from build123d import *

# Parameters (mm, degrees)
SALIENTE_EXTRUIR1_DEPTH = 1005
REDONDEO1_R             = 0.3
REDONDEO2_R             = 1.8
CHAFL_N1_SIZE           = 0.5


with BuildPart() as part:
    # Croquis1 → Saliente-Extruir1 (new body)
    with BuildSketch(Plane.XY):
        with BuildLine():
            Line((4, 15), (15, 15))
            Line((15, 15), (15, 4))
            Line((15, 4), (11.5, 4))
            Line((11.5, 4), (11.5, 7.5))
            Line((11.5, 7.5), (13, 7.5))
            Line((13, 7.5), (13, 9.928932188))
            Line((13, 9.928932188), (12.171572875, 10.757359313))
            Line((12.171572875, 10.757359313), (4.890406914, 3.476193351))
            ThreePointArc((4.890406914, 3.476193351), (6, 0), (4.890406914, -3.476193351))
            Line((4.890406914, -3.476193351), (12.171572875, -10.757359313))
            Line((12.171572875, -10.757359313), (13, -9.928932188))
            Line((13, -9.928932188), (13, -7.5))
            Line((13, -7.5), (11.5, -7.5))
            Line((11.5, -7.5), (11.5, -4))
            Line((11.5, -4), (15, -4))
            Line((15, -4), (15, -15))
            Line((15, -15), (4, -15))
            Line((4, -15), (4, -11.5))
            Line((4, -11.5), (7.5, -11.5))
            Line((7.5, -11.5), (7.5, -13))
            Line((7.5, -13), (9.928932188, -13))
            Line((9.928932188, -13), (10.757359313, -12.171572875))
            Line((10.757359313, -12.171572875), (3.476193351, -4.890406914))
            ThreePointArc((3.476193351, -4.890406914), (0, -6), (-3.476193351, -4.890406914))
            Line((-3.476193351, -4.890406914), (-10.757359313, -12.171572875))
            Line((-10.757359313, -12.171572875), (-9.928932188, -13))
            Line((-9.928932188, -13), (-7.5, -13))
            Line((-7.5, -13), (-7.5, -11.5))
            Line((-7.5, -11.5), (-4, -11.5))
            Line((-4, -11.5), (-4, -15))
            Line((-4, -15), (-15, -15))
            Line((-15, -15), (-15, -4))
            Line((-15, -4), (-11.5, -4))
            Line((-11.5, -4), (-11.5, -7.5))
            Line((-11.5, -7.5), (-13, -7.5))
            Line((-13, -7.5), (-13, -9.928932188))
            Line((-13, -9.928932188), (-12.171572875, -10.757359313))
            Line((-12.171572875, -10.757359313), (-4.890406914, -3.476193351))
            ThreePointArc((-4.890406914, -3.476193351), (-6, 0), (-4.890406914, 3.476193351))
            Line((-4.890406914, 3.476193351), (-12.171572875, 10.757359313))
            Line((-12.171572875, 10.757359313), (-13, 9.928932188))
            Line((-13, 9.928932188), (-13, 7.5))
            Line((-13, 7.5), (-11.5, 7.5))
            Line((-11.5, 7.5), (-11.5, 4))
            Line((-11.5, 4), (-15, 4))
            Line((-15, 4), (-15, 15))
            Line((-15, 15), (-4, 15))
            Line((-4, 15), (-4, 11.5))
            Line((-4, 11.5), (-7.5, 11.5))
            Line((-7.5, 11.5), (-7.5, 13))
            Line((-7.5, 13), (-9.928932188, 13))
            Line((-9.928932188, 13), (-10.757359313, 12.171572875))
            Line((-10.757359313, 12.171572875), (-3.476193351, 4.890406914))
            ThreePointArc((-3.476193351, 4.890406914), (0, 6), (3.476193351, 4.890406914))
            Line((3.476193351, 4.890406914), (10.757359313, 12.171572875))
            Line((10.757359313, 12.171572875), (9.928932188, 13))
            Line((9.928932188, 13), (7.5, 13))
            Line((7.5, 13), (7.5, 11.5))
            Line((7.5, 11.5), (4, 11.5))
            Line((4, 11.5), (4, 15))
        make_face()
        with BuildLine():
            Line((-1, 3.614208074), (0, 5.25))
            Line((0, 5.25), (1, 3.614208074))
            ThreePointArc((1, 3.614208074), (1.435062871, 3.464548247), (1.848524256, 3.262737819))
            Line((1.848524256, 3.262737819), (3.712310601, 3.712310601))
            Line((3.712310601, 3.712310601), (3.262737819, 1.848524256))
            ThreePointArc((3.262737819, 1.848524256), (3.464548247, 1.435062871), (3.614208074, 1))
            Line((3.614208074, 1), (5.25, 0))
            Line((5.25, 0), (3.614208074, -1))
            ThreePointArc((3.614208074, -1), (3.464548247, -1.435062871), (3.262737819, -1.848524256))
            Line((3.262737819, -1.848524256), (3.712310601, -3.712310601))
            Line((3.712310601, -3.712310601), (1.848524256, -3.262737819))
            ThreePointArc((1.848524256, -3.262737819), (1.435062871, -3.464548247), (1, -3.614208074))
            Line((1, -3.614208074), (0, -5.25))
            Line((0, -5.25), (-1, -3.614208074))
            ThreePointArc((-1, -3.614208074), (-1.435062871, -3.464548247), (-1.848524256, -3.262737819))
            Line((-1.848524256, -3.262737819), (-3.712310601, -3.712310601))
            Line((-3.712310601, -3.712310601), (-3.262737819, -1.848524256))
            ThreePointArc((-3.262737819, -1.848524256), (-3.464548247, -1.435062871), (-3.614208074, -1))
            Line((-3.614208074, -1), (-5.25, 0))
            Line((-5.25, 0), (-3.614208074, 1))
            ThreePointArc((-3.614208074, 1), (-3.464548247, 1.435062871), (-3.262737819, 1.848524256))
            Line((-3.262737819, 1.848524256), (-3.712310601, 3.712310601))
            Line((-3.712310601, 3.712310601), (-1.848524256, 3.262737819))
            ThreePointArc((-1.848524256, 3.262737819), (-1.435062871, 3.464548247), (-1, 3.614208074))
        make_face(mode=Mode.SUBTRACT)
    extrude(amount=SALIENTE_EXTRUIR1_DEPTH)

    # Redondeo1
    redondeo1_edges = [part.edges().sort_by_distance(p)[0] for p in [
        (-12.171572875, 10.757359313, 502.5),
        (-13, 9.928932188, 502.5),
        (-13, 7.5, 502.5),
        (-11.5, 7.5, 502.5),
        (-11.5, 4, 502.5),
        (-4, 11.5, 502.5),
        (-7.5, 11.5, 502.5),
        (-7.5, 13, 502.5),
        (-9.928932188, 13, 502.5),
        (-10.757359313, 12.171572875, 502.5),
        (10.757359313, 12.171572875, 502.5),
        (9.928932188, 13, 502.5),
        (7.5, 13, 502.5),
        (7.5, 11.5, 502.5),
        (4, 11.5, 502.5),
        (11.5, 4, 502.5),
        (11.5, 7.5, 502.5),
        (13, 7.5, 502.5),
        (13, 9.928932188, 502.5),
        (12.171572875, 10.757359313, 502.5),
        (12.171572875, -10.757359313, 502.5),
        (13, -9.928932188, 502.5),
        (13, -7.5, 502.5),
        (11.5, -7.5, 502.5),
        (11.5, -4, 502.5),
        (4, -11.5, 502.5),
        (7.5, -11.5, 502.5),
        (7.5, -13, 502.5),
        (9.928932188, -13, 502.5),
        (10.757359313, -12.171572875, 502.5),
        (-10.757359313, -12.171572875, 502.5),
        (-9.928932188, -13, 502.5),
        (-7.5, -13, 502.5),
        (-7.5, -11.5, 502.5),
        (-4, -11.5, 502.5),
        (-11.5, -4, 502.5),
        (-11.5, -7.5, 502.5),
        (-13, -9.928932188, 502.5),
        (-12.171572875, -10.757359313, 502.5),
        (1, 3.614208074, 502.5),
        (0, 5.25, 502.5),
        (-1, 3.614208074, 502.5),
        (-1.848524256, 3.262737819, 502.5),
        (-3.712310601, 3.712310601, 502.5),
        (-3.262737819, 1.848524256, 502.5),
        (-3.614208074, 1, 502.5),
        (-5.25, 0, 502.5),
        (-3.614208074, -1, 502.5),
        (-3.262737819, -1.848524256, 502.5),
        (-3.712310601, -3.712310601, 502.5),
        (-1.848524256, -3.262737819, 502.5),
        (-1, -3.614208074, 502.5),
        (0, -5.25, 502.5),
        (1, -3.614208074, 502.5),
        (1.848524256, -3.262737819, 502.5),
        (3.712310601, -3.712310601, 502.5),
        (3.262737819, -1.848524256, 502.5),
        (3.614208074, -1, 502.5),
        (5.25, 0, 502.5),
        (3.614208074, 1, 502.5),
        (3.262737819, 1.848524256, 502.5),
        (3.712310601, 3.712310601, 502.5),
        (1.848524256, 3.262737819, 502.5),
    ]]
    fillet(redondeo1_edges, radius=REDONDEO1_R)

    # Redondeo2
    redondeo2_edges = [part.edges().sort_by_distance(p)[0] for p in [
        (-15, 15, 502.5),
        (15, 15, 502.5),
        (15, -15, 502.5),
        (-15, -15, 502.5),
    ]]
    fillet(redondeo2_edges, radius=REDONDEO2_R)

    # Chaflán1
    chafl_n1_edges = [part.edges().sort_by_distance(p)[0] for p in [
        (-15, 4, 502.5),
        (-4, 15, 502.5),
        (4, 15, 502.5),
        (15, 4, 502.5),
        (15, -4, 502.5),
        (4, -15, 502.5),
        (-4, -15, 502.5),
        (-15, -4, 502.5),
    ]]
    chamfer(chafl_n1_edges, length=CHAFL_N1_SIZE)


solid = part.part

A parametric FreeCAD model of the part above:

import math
import FreeCAD as App
import Part
import Sketcher

V = App.Vector


def edges_at(feature, points):
    """Names of the edges that pass closest to the given points."""
    edges = feature.Shape.Edges
    near = lambda p: min(range(len(edges)), key=lambda i: edges[i].distToShape(Part.Vertex(*p))[0])
    return sorted({f"Edge{near(p) + 1}" for p in points})

doc = App.newDocument("Part")
body = doc.addObject("PartDesign::Body", "Body")

# Sketch on XY plane
sketch1 = body.newObject("Sketcher::SketchObject", "Sketch")
sketch1.AttachmentSupport = (doc.getObject("XY_Plane"), [""])
sketch1.MapMode = "FlatFace"
sketch1.addGeometry([
    Part.LineSegment(V(15, 15, 0), V(4, 15, 0)),  # 0
    Part.LineSegment(V(4, 15, 0), V(4, 11.5, 0)),  # 1
    Part.LineSegment(V(4, 11.5, 0), V(7.5, 11.5, 0)),  # 2
    Part.LineSegment(V(7.5, 11.5, 0), V(7.5, 13, 0)),  # 3
    Part.LineSegment(V(7.5, 13, 0), V(9.9, 13, 0)),  # 4
    Part.LineSegment(V(9.9, 13, 0), V(10.8, 12.2, 0)),  # 5
    Part.LineSegment(V(10.8, 12.2, 0), V(3.5, 4.9, 0)),  # 6
    Part.ArcOfCircle(Part.Circle(V(0, 0, 0), V(0, 0, 1), 6), math.radians(55), math.radians(125)),  # 7
    Part.LineSegment(V(-3.5, 4.9, 0), V(-10.8, 12.2, 0)),  # 8
    Part.LineSegment(V(-10.8, 12.2, 0), V(-9.9, 13, 0)),  # 9
    Part.LineSegment(V(-9.9, 13, 0), V(-7.5, 13, 0)),  # 10
    Part.LineSegment(V(-7.5, 13, 0), V(-7.5, 11.5, 0)),  # 11
    Part.LineSegment(V(-7.5, 11.5, 0), V(-4, 11.5, 0)),  # 12
    Part.LineSegment(V(-4, 11.5, 0), V(-4, 15, 0)),  # 13
    Part.LineSegment(V(-4, 15, 0), V(-15, 15, 0)),  # 14
    Part.LineSegment(V(-15, 15, 0), V(-15, 4, 0)),  # 15
    Part.LineSegment(V(-15, 4, 0), V(-11.5, 4, 0)),  # 16
    Part.LineSegment(V(-11.5, 4, 0), V(-11.5, 7.5, 0)),  # 17
    Part.LineSegment(V(-11.5, 7.5, 0), V(-13, 7.5, 0)),  # 18
    Part.LineSegment(V(-13, 7.5, 0), V(-13, 9.9, 0)),  # 19
    Part.LineSegment(V(-13, 9.9, 0), V(-12.2, 10.8, 0)),  # 20
    Part.LineSegment(V(-12.2, 10.8, 0), V(-4.9, 3.5, 0)),  # 21
    Part.ArcOfCircle(Part.Circle(V(0, 0, 0), V(0, 0, 1), 6), math.radians(145), math.radians(215)),  # 22
    Part.LineSegment(V(-4.9, -3.5, 0), V(-12.2, -10.8, 0)),  # 23
    Part.LineSegment(V(-12.2, -10.8, 0), V(-13, -9.9, 0)),  # 24
    Part.LineSegment(V(-13, -9.9, 0), V(-13, -7.5, 0)),  # 25
    Part.LineSegment(V(-13, -7.5, 0), V(-11.5, -7.5, 0)),  # 26
    Part.LineSegment(V(-11.5, -7.5, 0), V(-11.5, -4, 0)),  # 27
    Part.LineSegment(V(-11.5, -4, 0), V(-15, -4, 0)),  # 28
    Part.LineSegment(V(-15, -4, 0), V(-15, -15, 0)),  # 29
    Part.LineSegment(V(-15, -15, 0), V(-4, -15, 0)),  # 30
    Part.LineSegment(V(-4, -15, 0), V(-4, -11.5, 0)),  # 31
    Part.LineSegment(V(-4, -11.5, 0), V(-7.5, -11.5, 0)),  # 32
    Part.LineSegment(V(-7.5, -11.5, 0), V(-7.5, -13, 0)),  # 33
    Part.LineSegment(V(-7.5, -13, 0), V(-9.9, -13, 0)),  # 34
    Part.LineSegment(V(-9.9, -13, 0), V(-10.8, -12.2, 0)),  # 35
    Part.LineSegment(V(-10.8, -12.2, 0), V(-3.5, -4.9, 0)),  # 36
    Part.ArcOfCircle(Part.Circle(V(0, 0, 0), V(0, 0, 1), 6), math.radians(-125), math.radians(-55)),  # 37
    Part.LineSegment(V(3.5, -4.9, 0), V(10.8, -12.2, 0)),  # 38
    Part.LineSegment(V(10.8, -12.2, 0), V(9.9, -13, 0)),  # 39
    Part.LineSegment(V(9.9, -13, 0), V(7.5, -13, 0)),  # 40
    Part.LineSegment(V(7.5, -13, 0), V(7.5, -11.5, 0)),  # 41
    Part.LineSegment(V(7.5, -11.5, 0), V(4, -11.5, 0)),  # 42
    Part.LineSegment(V(4, -11.5, 0), V(4, -15, 0)),  # 43
    Part.LineSegment(V(4, -15, 0), V(15, -15, 0)),  # 44
    Part.LineSegment(V(15, -15, 0), V(15, -4, 0)),  # 45
    Part.LineSegment(V(15, -4, 0), V(11.5, -4, 0)),  # 46
    Part.LineSegment(V(11.5, -4, 0), V(11.5, -7.5, 0)),  # 47
    Part.LineSegment(V(11.5, -7.5, 0), V(13, -7.5, 0)),  # 48
    Part.LineSegment(V(13, -7.5, 0), V(13, -9.9, 0)),  # 49
    Part.LineSegment(V(13, -9.9, 0), V(12.2, -10.8, 0)),  # 50
    Part.LineSegment(V(12.2, -10.8, 0), V(4.9, -3.5, 0)),  # 51
    Part.ArcOfCircle(Part.Circle(V(0, 0, 0), V(0, 0, 1), 6), math.radians(-35), math.radians(35)),  # 52
    Part.LineSegment(V(4.9, 3.5, 0), V(12.2, 10.8, 0)),  # 53
    Part.LineSegment(V(12.2, 10.8, 0), V(13, 9.9, 0)),  # 54
    Part.LineSegment(V(13, 9.9, 0), V(13, 7.5, 0)),  # 55
    Part.LineSegment(V(13, 7.5, 0), V(11.5, 7.5, 0)),  # 56
    Part.LineSegment(V(11.5, 7.5, 0), V(11.5, 4, 0)),  # 57
    Part.LineSegment(V(11.5, 4, 0), V(15, 4, 0)),  # 58
    Part.LineSegment(V(15, 4, 0), V(15, 15, 0)),  # 59
    Part.LineSegment(V(-1, 3.6, 0), V(0, 5.2, 0)),  # 60
    Part.LineSegment(V(0, 5.2, 0), V(1, 3.6, 0)),  # 61
    Part.ArcOfCircle(Part.Circle(V(0, 0, 0), V(0, 0, 1), 3.8), math.radians(60.47), math.radians(74.53)),  # 62
    Part.LineSegment(V(1.8, 3.3, 0), V(3.7, 3.7, 0)),  # 63
    Part.LineSegment(V(3.7, 3.7, 0), V(3.3, 1.8, 0)),  # 64
    Part.ArcOfCircle(Part.Circle(V(0, 0, 0), V(0, 0, 1), 3.8), math.radians(15.47), math.radians(29.53)),  # 65
    Part.LineSegment(V(3.6, 1, 0), V(5.2, 0, 0)),  # 66
    Part.LineSegment(V(5.2, 0, 0), V(3.6, -1, 0)),  # 67
    Part.ArcOfCircle(Part.Circle(V(0, 0, 0), V(0, 0, 1), 3.8), math.radians(-29.53), math.radians(-15.47)),  # 68
    Part.LineSegment(V(3.3, -1.8, 0), V(3.7, -3.7, 0)),  # 69
    Part.LineSegment(V(3.7, -3.7, 0), V(1.8, -3.3, 0)),  # 70
    Part.ArcOfCircle(Part.Circle(V(0, 0, 0), V(0, 0, 1), 3.8), math.radians(-74.53), math.radians(-60.47)),  # 71
    Part.LineSegment(V(1, -3.6, 0), V(0, -5.2, 0)),  # 72
    Part.LineSegment(V(0, -5.2, 0), V(-1, -3.6, 0)),  # 73
    Part.ArcOfCircle(Part.Circle(V(0, 0, 0), V(0, 0, 1), 3.8), math.radians(-119.53), math.radians(-105.47)),  # 74
    Part.LineSegment(V(-1.8, -3.3, 0), V(-3.7, -3.7, 0)),  # 75
    Part.LineSegment(V(-3.7, -3.7, 0), V(-3.3, -1.8, 0)),  # 76
    Part.ArcOfCircle(Part.Circle(V(0, 0, 0), V(0, 0, 1), 3.8), math.radians(-164.53), math.radians(-150.47)),  # 77
    Part.LineSegment(V(-3.6, -1, 0), V(-5.2, 0, 0)),  # 78
    Part.LineSegment(V(-5.2, 0, 0), V(-3.6, 1, 0)),  # 79
    Part.ArcOfCircle(Part.Circle(V(0, 0, 0), V(0, 0, 1), 3.8), math.radians(150.47), math.radians(164.53)),  # 80
    Part.LineSegment(V(-3.3, 1.8, 0), V(-3.7, 3.7, 0)),  # 81
    Part.LineSegment(V(-3.7, 3.7, 0), V(-1.8, 3.3, 0)),  # 82
    Part.ArcOfCircle(Part.Circle(V(0, 0, 0), V(0, 0, 1), 3.8), math.radians(105.47), math.radians(119.53)),  # 83
], False)
sketch1.addConstraint([
    Sketcher.Constraint("Coincident", 0, 2, 1, 1),
    Sketcher.Constraint("Coincident", 1, 2, 2, 1),
    Sketcher.Constraint("Coincident", 2, 2, 3, 1),
    Sketcher.Constraint("Coincident", 3, 2, 4, 1),
    Sketcher.Constraint("Coincident", 4, 2, 5, 1),
    Sketcher.Constraint("Coincident", 5, 2, 6, 1),
    Sketcher.Constraint("Coincident", 6, 2, 7, 1),
    Sketcher.Constraint("Coincident", 7, 2, 8, 1),
    Sketcher.Constraint("Coincident", 8, 2, 9, 1),
    Sketcher.Constraint("Coincident", 9, 2, 10, 1),
    Sketcher.Constraint("Coincident", 10, 2, 11, 1),
    Sketcher.Constraint("Coincident", 11, 2, 12, 1),
    Sketcher.Constraint("Coincident", 12, 2, 13, 1),
    Sketcher.Constraint("Coincident", 13, 2, 14, 1),
    Sketcher.Constraint("Coincident", 14, 2, 15, 1),
    Sketcher.Constraint("Coincident", 15, 2, 16, 1),
    Sketcher.Constraint("Coincident", 16, 2, 17, 1),
    Sketcher.Constraint("Coincident", 17, 2, 18, 1),
    Sketcher.Constraint("Coincident", 18, 2, 19, 1),
    Sketcher.Constraint("Coincident", 19, 2, 20, 1),
    Sketcher.Constraint("Coincident", 20, 2, 21, 1),
    Sketcher.Constraint("Coincident", 21, 2, 22, 1),
    Sketcher.Constraint("Coincident", 22, 2, 23, 1),
    Sketcher.Constraint("Coincident", 23, 2, 24, 1),
    Sketcher.Constraint("Coincident", 24, 2, 25, 1),
    Sketcher.Constraint("Coincident", 25, 2, 26, 1),
    Sketcher.Constraint("Coincident", 26, 2, 27, 1),
    Sketcher.Constraint("Coincident", 27, 2, 28, 1),
    Sketcher.Constraint("Coincident", 28, 2, 29, 1),
    Sketcher.Constraint("Coincident", 29, 2, 30, 1),
    Sketcher.Constraint("Coincident", 30, 2, 31, 1),
    Sketcher.Constraint("Coincident", 31, 2, 32, 1),
    Sketcher.Constraint("Coincident", 32, 2, 33, 1),
    Sketcher.Constraint("Coincident", 33, 2, 34, 1),
    Sketcher.Constraint("Coincident", 34, 2, 35, 1),
    Sketcher.Constraint("Coincident", 35, 2, 36, 1),
    Sketcher.Constraint("Coincident", 36, 2, 37, 1),
    Sketcher.Constraint("Coincident", 37, 2, 38, 1),
    Sketcher.Constraint("Coincident", 38, 2, 39, 1),
    Sketcher.Constraint("Coincident", 39, 2, 40, 1),
    Sketcher.Constraint("Coincident", 40, 2, 41, 1),
    Sketcher.Constraint("Coincident", 41, 2, 42, 1),
    Sketcher.Constraint("Coincident", 42, 2, 43, 1),
    Sketcher.Constraint("Coincident", 43, 2, 44, 1),
    Sketcher.Constraint("Coincident", 44, 2, 45, 1),
    Sketcher.Constraint("Coincident", 45, 2, 46, 1),
    Sketcher.Constraint("Coincident", 46, 2, 47, 1),
    Sketcher.Constraint("Coincident", 47, 2, 48, 1),
    Sketcher.Constraint("Coincident", 48, 2, 49, 1),
    Sketcher.Constraint("Coincident", 49, 2, 50, 1),
    Sketcher.Constraint("Coincident", 50, 2, 51, 1),
    Sketcher.Constraint("Coincident", 51, 2, 52, 1),
    Sketcher.Constraint("Coincident", 52, 2, 53, 1),
    Sketcher.Constraint("Coincident", 53, 2, 54, 1),
    Sketcher.Constraint("Coincident", 54, 2, 55, 1),
    Sketcher.Constraint("Coincident", 55, 2, 56, 1),
    Sketcher.Constraint("Coincident", 56, 2, 57, 1),
    Sketcher.Constraint("Coincident", 57, 2, 58, 1),
    Sketcher.Constraint("Coincident", 58, 2, 59, 1),
    Sketcher.Constraint("Coincident", 59, 2, 0, 1),
    Sketcher.Constraint("Coincident", 60, 2, 61, 1),
    Sketcher.Constraint("Coincident", 61, 2, 62, 2),
    Sketcher.Constraint("Coincident", 62, 1, 63, 1),
    Sketcher.Constraint("Coincident", 63, 2, 64, 1),
    Sketcher.Constraint("Coincident", 64, 2, 65, 2),
    Sketcher.Constraint("Coincident", 65, 1, 66, 1),
    Sketcher.Constraint("Coincident", 66, 2, 67, 1),
    Sketcher.Constraint("Coincident", 67, 2, 68, 2),
    Sketcher.Constraint("Coincident", 68, 1, 69, 1),
    Sketcher.Constraint("Coincident", 69, 2, 70, 1),
    Sketcher.Constraint("Coincident", 70, 2, 71, 2),
    Sketcher.Constraint("Coincident", 71, 1, 72, 1),
    Sketcher.Constraint("Coincident", 72, 2, 73, 1),
    Sketcher.Constraint("Coincident", 73, 2, 74, 2),
    Sketcher.Constraint("Coincident", 74, 1, 75, 1),
    Sketcher.Constraint("Coincident", 75, 2, 76, 1),
    Sketcher.Constraint("Coincident", 76, 2, 77, 2),
    Sketcher.Constraint("Coincident", 77, 1, 78, 1),
    Sketcher.Constraint("Coincident", 78, 2, 79, 1),
    Sketcher.Constraint("Coincident", 79, 2, 80, 2),
    Sketcher.Constraint("Coincident", 80, 1, 81, 1),
    Sketcher.Constraint("Coincident", 81, 2, 82, 1),
    Sketcher.Constraint("Coincident", 82, 2, 83, 2),
    Sketcher.Constraint("Coincident", 83, 1, 60, 1),
    Sketcher.Constraint("Horizontal", 0),
    Sketcher.Constraint("Vertical", 1),
    Sketcher.Constraint("Horizontal", 2),
    Sketcher.Constraint("Vertical", 3),
    Sketcher.Constraint("Horizontal", 4),
    Sketcher.Constraint("Horizontal", 10),
    Sketcher.Constraint("Vertical", 11),
    Sketcher.Constraint("Horizontal", 12),
    Sketcher.Constraint("Vertical", 13),
    Sketcher.Constraint("Horizontal", 14),
    Sketcher.Constraint("Vertical", 15),
    Sketcher.Constraint("Horizontal", 16),
    Sketcher.Constraint("Vertical", 17),
    Sketcher.Constraint("Horizontal", 18),
    Sketcher.Constraint("Vertical", 19),
    Sketcher.Constraint("Vertical", 25),
    Sketcher.Constraint("Horizontal", 26),
    Sketcher.Constraint("Vertical", 27),
    Sketcher.Constraint("Horizontal", 28),
    Sketcher.Constraint("Vertical", 29),
    Sketcher.Constraint("Horizontal", 30),
    Sketcher.Constraint("Vertical", 31),
    Sketcher.Constraint("Horizontal", 32),
    Sketcher.Constraint("Vertical", 33),
    Sketcher.Constraint("Horizontal", 34),
    Sketcher.Constraint("Horizontal", 40),
    Sketcher.Constraint("Vertical", 41),
    Sketcher.Constraint("Horizontal", 42),
    Sketcher.Constraint("Vertical", 43),
    Sketcher.Constraint("Horizontal", 44),
    Sketcher.Constraint("Vertical", 45),
    Sketcher.Constraint("Horizontal", 46),
    Sketcher.Constraint("Vertical", 47),
    Sketcher.Constraint("Horizontal", 48),
    Sketcher.Constraint("Vertical", 49),
    Sketcher.Constraint("Vertical", 55),
    Sketcher.Constraint("Horizontal", 56),
    Sketcher.Constraint("Vertical", 57),
    Sketcher.Constraint("Horizontal", 58),
    Sketcher.Constraint("Vertical", 59),
    Sketcher.Constraint("Coincident", 7, 3, -1, 1),
    Sketcher.Constraint("Coincident", 22, 3, -1, 1),
    Sketcher.Constraint("Coincident", 37, 3, -1, 1),
    Sketcher.Constraint("Coincident", 52, 3, -1, 1),
    Sketcher.Constraint("Coincident", 62, 3, -1, 1),
    Sketcher.Constraint("Coincident", 65, 3, -1, 1),
    Sketcher.Constraint("Coincident", 68, 3, -1, 1),
    Sketcher.Constraint("Coincident", 71, 3, -1, 1),
    Sketcher.Constraint("Coincident", 74, 3, -1, 1),
    Sketcher.Constraint("Coincident", 77, 3, -1, 1),
    Sketcher.Constraint("Coincident", 80, 3, -1, 1),
    Sketcher.Constraint("Coincident", 83, 3, -1, 1),
    Sketcher.Constraint("Equal", 7, 22),
    Sketcher.Constraint("Equal", 22, 37),
    Sketcher.Constraint("Equal", 37, 52),
    Sketcher.Constraint("Equal", 62, 65),
    Sketcher.Constraint("Equal", 65, 68),
    Sketcher.Constraint("Equal", 68, 71),
    Sketcher.Constraint("Equal", 71, 74),
    Sketcher.Constraint("Equal", 74, 77),
    Sketcher.Constraint("Equal", 77, 80),
    Sketcher.Constraint("Equal", 80, 83),
    Sketcher.Constraint("Symmetric", 0, 2, 30, 2, -1, 1),
    Sketcher.Constraint("Symmetric", 2, 2, 32, 2, -1, 1),
    Sketcher.Constraint("Symmetric", 4, 2, 34, 2, -1, 1),
    Sketcher.Constraint("Symmetric", 5, 2, 35, 2, -1, 1),
    Sketcher.Constraint("Symmetric", 8, 2, 38, 2, -1, 1),
    Sketcher.Constraint("Symmetric", 9, 2, 39, 2, -1, 1),
    Sketcher.Constraint("Symmetric", 11, 2, 41, 2, -1, 1),
    Sketcher.Constraint("Symmetric", 13, 2, 43, 2, -1, 1),
    Sketcher.Constraint("Symmetric", 15, 2, 45, 2, -1, 1),
    Sketcher.Constraint("Symmetric", 17, 2, 47, 2, -1, 1),
    Sketcher.Constraint("Symmetric", 19, 2, 49, 2, -1, 1),
    Sketcher.Constraint("Symmetric", 20, 2, 50, 2, -1, 1),
    Sketcher.Constraint("Symmetric", 23, 2, 53, 2, -1, 1),
    Sketcher.Constraint("Symmetric", 24, 2, 54, 2, -1, 1),
    Sketcher.Constraint("Symmetric", 26, 2, 56, 2, -1, 1),
    Sketcher.Constraint("Symmetric", 28, 2, 58, 2, -1, 1),
    Sketcher.Constraint("Symmetric", 60, 2, 72, 2, -1, 1),
    Sketcher.Constraint("Symmetric", 63, 2, 75, 2, -1, 1),
    Sketcher.Constraint("Symmetric", 66, 2, 78, 2, -1, 1),
    Sketcher.Constraint("Symmetric", 69, 2, 81, 2, -1, 1),
    Sketcher.Constraint("Symmetric", 5, 2, 8, 2, -2),
    Sketcher.Constraint("Symmetric", 4, 2, 9, 2, -2),
    Sketcher.Constraint("Symmetric", 2, 2, 11, 2, -2),
    Sketcher.Constraint("Symmetric", 0, 2, 13, 2, -2),
    Sketcher.Constraint("Symmetric", 28, 2, 45, 2, -2),
    Sketcher.Constraint("Symmetric", 26, 2, 47, 2, -2),
    Sketcher.Constraint("Symmetric", 24, 2, 49, 2, -2),
    Sketcher.Constraint("Symmetric", 23, 2, 50, 2, -2),
    Sketcher.Constraint("Symmetric", 69, 2, 75, 2, -2),
    Sketcher.Constraint("PointOnObject", 60, 2, -2),
    Sketcher.Constraint("PointOnObject", 66, 2, -1),
    Sketcher.Constraint("Perpendicular", 5, 6),
    Sketcher.Constraint("Perpendicular", 6, 8),
    Sketcher.Constraint("Perpendicular", 8, 9),
    Sketcher.Constraint("Parallel", 9, 20),
    Sketcher.Constraint("Perpendicular", 20, 21),
    Sketcher.Constraint("Perpendicular", 21, 23),
    Sketcher.Constraint("Perpendicular", 35, 36),
    Sketcher.Constraint("Perpendicular", 36, 38),
    Sketcher.Constraint("Perpendicular", 50, 51),
    Sketcher.Constraint("Perpendicular", 51, 53),
    Sketcher.Constraint("Perpendicular", 60, 66),
    Sketcher.Constraint("Perpendicular", 61, 67),
    Sketcher.Constraint("Perpendicular", 63, 69),
    Sketcher.Constraint("Perpendicular", 64, 70),
    Sketcher.Constraint("Perpendicular", 66, 72),
    Sketcher.Constraint("Perpendicular", 67, 73),
    Sketcher.Constraint("Perpendicular", 69, 75),
    Sketcher.Constraint("Perpendicular", 70, 76),
    Sketcher.Constraint("Perpendicular", 72, 78),
    Sketcher.Constraint("Perpendicular", 73, 79),
    Sketcher.Constraint("Perpendicular", 75, 81),
    Sketcher.Constraint("Perpendicular", 76, 82),
    Sketcher.Constraint("Horizontal", 71, 1, 73, 2),
    Sketcher.Constraint("Horizontal", 70, 2, 74, 1),
    Sketcher.Constraint("Equal", 12, 16),
    Sketcher.Constraint("Equal", 58, 1),
    Sketcher.Constraint("Equal", 56, 3),
    Sketcher.Constraint("Equal", 44, 15),
    Sketcher.Constraint("Equal", 13, 17),
    Sketcher.Constraint("Equal", 40, 19),
    Sketcher.Constraint("Equal", 9, 20),
    Sketcher.Constraint("Equal", 8, 21),
    Sketcher.Constraint("Equal", 61, 63),
    Sketcher.Constraint("Equal", 63, 64),
    Sketcher.Constraint("Equal", 64, 66),
    Sketcher.Constraint("Radius", 7, 6.0),
    Sketcher.Constraint("DistanceX", 0, 2, 0, 1, 11.0),
    Sketcher.Constraint("Radius", 62, 3.75),
    Sketcher.Constraint("DistanceX", 2, 1, 2, 2, 3.5),
    Sketcher.Constraint("DistanceX", 18, 2, 18, 1, 1.5),
    Sketcher.Constraint("DistanceX", -1, 1, 0, 2, 4.0),
    Sketcher.Constraint("DistanceX", -1, 1, 61, 2, 1.0),
    Sketcher.Constraint("DistanceY", -1, 1, 60, 2, 5.25),
    Sketcher.Constraint("DistanceX", 4, 1, 4, 2, 2.428932),
    Sketcher.Constraint("DistanceX", -1, 1, 5, 2, 10.757359),
    Sketcher.Constraint("DistanceX", -1, 1, 63, 2, 3.712311),
])
pad1 = body.newObject("PartDesign::Pad", "Pad")
pad1.Profile = sketch1
pad1.Length = 1005
doc.recompute()

fillet = body.newObject("PartDesign::Fillet", "Fillet")
fillet.Base = (pad1, edges_at(pad1, [
    (-12.172, 10.757, 502.5),
    (-13, 9.929, 502.5),
    (-13, 7.5, 502.5),
    (-11.5, 7.5, 502.5),
    (-11.5, 4, 502.5),
    (-4, 11.5, 502.5),
    (-7.5, 11.5, 502.5),
    (-7.5, 13, 502.5),
    (-9.929, 13, 502.5),
    (-10.757, 12.172, 502.5),
    (10.757, 12.172, 502.5),
    (9.929, 13, 502.5),
    (7.5, 13, 502.5),
    (7.5, 11.5, 502.5),
    (4, 11.5, 502.5),
    (11.5, 4, 502.5),
    (11.5, 7.5, 502.5),
    (13, 7.5, 502.5),
    (13, 9.929, 502.5),
    (12.172, 10.757, 502.5),
    (12.172, -10.757, 502.5),
    (13, -9.929, 502.5),
    (13, -7.5, 502.5),
    (11.5, -7.5, 502.5),
    (11.5, -4, 502.5),
    (4, -11.5, 502.5),
    (7.5, -11.5, 502.5),
    (7.5, -13, 502.5),
    (9.929, -13, 502.5),
    (10.757, -12.172, 502.5),
    (-10.757, -12.172, 502.5),
    (-9.929, -13, 502.5),
    (-7.5, -13, 502.5),
    (-7.5, -11.5, 502.5),
    (-4, -11.5, 502.5),
    (-11.5, -4, 502.5),
    (-11.5, -7.5, 502.5),
    (-13, -9.929, 502.5),
    (-12.172, -10.757, 502.5),
    (1, 3.614, 502.5),
    (0, 5.25, 502.5),
    (-1, 3.614, 502.5),
    (-1.849, 3.263, 502.5),
    (-3.712, 3.712, 502.5),
    (-3.263, 1.849, 502.5),
    (-3.614, 1, 502.5),
    (-5.25, 0, 502.5),
    (-3.614, -1, 502.5),
    (-3.263, -1.849, 502.5),
    (-3.712, -3.712, 502.5),
    (-1.849, -3.263, 502.5),
    (-1, -3.614, 502.5),
    (0, -5.25, 502.5),
    (1, -3.614, 502.5),
    (1.849, -3.263, 502.5),
    (3.712, -3.712, 502.5),
    (3.263, -1.849, 502.5),
    (3.614, -1, 502.5),
    (5.25, 0, 502.5),
    (3.614, 1, 502.5),
    (3.263, 1.849, 502.5),
    (3.712, 3.712, 502.5),
    (1.849, 3.263, 502.5),
]))
fillet.Radius = 0.3
doc.recompute()

fillet2 = body.newObject("PartDesign::Fillet", "Fillet001")
fillet2.Base = (fillet, edges_at(fillet, [
    (-15, 15, 502.5),
    (15, 15, 502.5),
    (15, -15, 502.5),
    (-15, -15, 502.5),
]))
fillet2.Radius = 1.8
doc.recompute()

chamfer = body.newObject("PartDesign::Chamfer", "Chamfer")
chamfer.Base = (fillet2, edges_at(fillet2, [
    (-15, 4, 502.5),
    (-4, 15, 502.5),
    (4, 15, 502.5),
    (15, 4, 502.5),
    (15, -4, 502.5),
    (4, -15, 502.5),
    (-4, -15, 502.5),
    (-15, -4, 502.5),
]))
chamfer.Size = 0.5

doc.recompute()
